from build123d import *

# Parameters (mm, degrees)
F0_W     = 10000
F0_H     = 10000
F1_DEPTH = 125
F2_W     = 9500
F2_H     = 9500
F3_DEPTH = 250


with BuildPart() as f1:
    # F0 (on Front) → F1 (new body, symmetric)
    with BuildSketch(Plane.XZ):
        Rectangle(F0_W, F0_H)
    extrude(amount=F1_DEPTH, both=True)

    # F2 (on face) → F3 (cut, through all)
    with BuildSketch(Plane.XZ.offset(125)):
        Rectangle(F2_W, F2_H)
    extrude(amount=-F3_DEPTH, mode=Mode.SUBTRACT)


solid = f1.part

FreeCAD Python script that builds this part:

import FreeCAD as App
import Part
import Sketcher
from FreeCAD import Vector
Q = App.Units.Quantity

doc = App.newDocument("Part")
body = doc.addObject("PartDesign::Body", "Body")

sketch1 = doc.addObject("Sketcher::SketchObject", "Sketch")
body.addObject(sketch1)
sketch1.AttachmentSupport = (doc.XZ_Plane, [""])
sketch1.MapMode = "FlatFace"
sketch1.addGeometry([
    Part.LineSegment(Vector(-5000, 5000, 0), Vector(-5000, -5000, 0)),
    Part.LineSegment(Vector(-5000, -5000, 0), Vector(5000, -5000, 0)),
    Part.LineSegment(Vector(5000, -5000, 0), Vector(5000, 5000, 0)),
    Part.LineSegment(Vector(5000, 5000, 0), Vector(-5000, 5000, 0)),
], False)
sketch1.addConstraint([
    Sketcher.Constraint("Coincident", 0, 2, 1, 1),
    Sketcher.Constraint("Coincident", 1, 2, 2, 1),
    Sketcher.Constraint("Coincident", 2, 2, 3, 1),
    Sketcher.Constraint("Coincident", 3, 2, 0, 1),
    Sketcher.Constraint("Vertical", 0),
    Sketcher.Constraint("Horizontal", 1),
    Sketcher.Constraint("Vertical", 2),
    Sketcher.Constraint("Horizontal", 3),
    Sketcher.Constraint("Symmetric", 0, 2, 2, 2, -1, 1),
    Sketcher.Constraint("Equal", 3, 0),
    Sketcher.Constraint("DistanceX", 1, 1, 1, 2, Q("10000 mm")),
])
pad1 = doc.addObject("PartDesign::Pad", "Pad")
body.addObject(pad1)
pad1.Profile = sketch1
pad1.Length = 250
pad1.Midplane = True

sketch2 = doc.addObject("Sketcher::SketchObject", "Sketch001")
body.addObject(sketch2)
sketch2.AttachmentSupport = (doc.XZ_Plane, [""])
sketch2.MapMode = "FlatFace"
sketch2.AttachmentOffset = App.Placement(Vector(0, 0, 125), App.Rotation())
sketch2.addGeometry([
    Part.LineSegment(Vector(-4750, 4750, 0), Vector(-4750, -4750, 0)),
    Part.LineSegment(Vector(-4750, -4750, 0), Vector(4750, -4750, 0)),
    Part.LineSegment(Vector(4750, -4750, 0), Vector(4750, 4750, 0)),
    Part.LineSegment(Vector(4750, 4750, 0), Vector(-4750, 4750, 0)),
], False)
sketch2.addConstraint([
    Sketcher.Constraint("Coincident", 0, 2, 1, 1),
    Sketcher.Constraint("Coincident", 1, 2, 2, 1),
    Sketcher.Constraint("Coincident", 2, 2, 3, 1),
    Sketcher.Constraint("Coincident", 3, 2, 0, 1),
    Sketcher.Constraint("Vertical", 0),
    Sketcher.Constraint("Horizontal", 1),
    Sketcher.Constraint("Vertical", 2),
    Sketcher.Constraint("Horizontal", 3),
    Sketcher.Constraint("Symmetric", 0, 2, 2, 2, -1, 1),
    Sketcher.Constraint("Equal", 3, 0),
    Sketcher.Constraint("DistanceX", 1, 1, 1, 2, Q("9500 mm")),
])
pocket1 = doc.addObject("PartDesign::Pocket", "Pocket")
body.addObject(pocket1)
pocket1.Profile = sketch2
pocket1.Type = "ThroughAll"

doc.recompute()
